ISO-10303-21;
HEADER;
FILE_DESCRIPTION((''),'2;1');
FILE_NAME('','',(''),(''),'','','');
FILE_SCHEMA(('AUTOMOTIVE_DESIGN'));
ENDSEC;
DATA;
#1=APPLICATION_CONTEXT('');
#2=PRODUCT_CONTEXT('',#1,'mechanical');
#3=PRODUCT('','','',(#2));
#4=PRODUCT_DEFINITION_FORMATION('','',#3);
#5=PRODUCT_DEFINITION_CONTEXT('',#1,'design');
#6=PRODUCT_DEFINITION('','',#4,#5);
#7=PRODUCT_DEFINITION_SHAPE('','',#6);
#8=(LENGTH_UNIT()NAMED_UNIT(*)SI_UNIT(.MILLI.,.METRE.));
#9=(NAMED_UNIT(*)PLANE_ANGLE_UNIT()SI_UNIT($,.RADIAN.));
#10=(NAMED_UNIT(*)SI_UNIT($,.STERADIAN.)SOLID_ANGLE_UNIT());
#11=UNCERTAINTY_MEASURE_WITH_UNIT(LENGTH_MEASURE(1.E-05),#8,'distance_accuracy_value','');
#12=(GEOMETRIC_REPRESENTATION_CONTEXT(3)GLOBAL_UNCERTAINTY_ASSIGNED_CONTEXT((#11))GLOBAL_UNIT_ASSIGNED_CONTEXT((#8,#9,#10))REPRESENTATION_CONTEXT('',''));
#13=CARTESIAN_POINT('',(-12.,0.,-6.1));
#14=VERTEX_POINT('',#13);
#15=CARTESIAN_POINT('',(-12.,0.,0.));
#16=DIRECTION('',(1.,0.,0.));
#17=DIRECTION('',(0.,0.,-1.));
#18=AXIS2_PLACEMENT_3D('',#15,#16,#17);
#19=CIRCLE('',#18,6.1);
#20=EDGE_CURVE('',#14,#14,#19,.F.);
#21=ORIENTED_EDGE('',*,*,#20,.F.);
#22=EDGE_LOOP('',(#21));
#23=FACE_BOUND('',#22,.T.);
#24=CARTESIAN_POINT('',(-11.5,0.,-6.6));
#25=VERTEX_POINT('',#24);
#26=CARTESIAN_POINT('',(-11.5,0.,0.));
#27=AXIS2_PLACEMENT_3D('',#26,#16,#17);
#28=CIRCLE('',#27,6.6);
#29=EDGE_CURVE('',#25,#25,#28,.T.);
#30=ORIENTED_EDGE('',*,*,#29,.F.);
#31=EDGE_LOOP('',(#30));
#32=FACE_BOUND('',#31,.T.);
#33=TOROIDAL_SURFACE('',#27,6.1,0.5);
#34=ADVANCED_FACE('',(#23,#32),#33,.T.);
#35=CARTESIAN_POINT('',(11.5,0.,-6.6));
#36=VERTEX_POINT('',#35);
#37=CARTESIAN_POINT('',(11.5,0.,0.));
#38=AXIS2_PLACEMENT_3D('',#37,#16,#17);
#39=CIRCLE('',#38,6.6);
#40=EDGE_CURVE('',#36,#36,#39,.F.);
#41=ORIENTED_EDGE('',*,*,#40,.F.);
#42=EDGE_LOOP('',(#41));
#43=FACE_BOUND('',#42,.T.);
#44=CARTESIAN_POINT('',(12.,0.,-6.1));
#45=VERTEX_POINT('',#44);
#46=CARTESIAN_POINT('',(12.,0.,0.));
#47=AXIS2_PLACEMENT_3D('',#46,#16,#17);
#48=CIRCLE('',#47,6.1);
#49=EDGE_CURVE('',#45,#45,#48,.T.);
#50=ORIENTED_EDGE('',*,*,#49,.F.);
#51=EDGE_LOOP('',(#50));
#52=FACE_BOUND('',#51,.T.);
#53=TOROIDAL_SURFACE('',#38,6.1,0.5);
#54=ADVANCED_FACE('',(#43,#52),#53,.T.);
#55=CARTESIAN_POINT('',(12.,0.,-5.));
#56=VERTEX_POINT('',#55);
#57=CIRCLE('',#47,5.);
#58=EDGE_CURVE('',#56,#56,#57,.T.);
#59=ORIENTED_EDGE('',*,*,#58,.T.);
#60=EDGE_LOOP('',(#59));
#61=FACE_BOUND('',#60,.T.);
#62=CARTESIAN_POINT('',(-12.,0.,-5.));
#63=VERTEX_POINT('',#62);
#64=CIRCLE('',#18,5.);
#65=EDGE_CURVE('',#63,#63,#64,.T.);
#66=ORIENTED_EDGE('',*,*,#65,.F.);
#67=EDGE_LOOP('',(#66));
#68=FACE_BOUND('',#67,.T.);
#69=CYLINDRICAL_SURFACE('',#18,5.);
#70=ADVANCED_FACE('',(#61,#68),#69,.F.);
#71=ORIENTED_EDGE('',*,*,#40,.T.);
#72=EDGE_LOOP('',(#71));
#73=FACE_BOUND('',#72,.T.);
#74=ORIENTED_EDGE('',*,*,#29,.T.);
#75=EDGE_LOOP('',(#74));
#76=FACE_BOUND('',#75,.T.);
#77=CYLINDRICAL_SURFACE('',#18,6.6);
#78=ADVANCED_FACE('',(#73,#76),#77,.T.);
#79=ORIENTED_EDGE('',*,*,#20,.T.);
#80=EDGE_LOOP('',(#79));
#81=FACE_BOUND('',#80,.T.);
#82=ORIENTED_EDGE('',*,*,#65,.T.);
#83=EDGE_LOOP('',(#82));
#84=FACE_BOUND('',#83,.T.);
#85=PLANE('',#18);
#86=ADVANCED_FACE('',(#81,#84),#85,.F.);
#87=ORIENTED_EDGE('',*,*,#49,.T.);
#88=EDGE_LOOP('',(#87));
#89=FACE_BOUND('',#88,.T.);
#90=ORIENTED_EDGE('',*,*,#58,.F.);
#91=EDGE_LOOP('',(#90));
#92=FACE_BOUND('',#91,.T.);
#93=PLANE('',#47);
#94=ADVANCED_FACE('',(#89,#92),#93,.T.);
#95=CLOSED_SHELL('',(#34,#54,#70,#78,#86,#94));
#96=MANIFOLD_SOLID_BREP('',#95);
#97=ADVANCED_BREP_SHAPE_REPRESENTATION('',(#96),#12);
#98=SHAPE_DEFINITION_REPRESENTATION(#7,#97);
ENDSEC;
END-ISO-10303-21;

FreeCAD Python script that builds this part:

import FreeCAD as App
import Part
import Sketcher
from FreeCAD import Vector


def edges_at(feature, points):
    """Names of the edges that pass closest to the given points."""
    edges = feature.Shape.Edges
    near = lambda p: min(range(len(edges)), key=lambda i: edges[i].distToShape(Part.Vertex(*p))[0])
    return sorted({f"Edge{near(p) + 1}" for p in points})

doc = App.newDocument("Part")
params = doc.addObject("Spreadsheet::Sheet", "Params")
for row, (alias, value) in enumerate([
    ("sketch1_diameter", "10 mm"),
    ("sketch1_diameter2", "13.2 mm"),
    ("pad1_length", "24 mm"),
    ("fillet_radius", "0.5 mm"),
], start=1):
    params.set(f"A{row}", alias)
    params.set(f"B{row}", "=" + value)
    params.setAlias(f"B{row}", alias)

body = doc.addObject("PartDesign::Body", "Body")

# Sketch on YZ plane
sketch1 = body.newObject("Sketcher::SketchObject", "Sketch")
sketch1.AttachmentSupport = (doc.getObject("YZ_Plane"), [""])
sketch1.MapMode = "FlatFace"
sketch1.AttachmentOffset = App.Placement(Vector(0, 0, -12), App.Rotation())
sketch1.addGeometry([
    Part.Circle(Vector(0, 0, 0), Vector(0, 0, 1), 7),
    Part.Circle(Vector(0, 0, 0), Vector(0, 0, 1), 5),
], False)
sketch1.addConstraint([
    Sketcher.Constraint("Coincident", 0, 3, -1, 1),
    Sketcher.Constraint("Coincident", 1, 3, -1, 1),
    Sketcher.Constraint("Diameter", 1, 10.0),
    Sketcher.Constraint("Diameter", 0, 13.2),
])
sketch1.setExpression("Constraints[2]", "Params.sketch1_diameter")
sketch1.setExpression("Constraints[3]", "Params.sketch1_diameter2")
pad1 = body.newObject("PartDesign::Pad", "Pad")
pad1.Profile = sketch1
pad1.setExpression("Length", "Params.pad1_length")
doc.recompute()

fillet = body.newObject("PartDesign::Fillet", "Fillet")
fillet.Base = (pad1, edges_at(pad1, [(-12, 0, 6.6), (12, 0, 6.6)]))
fillet.setExpression("Radius", "Params.fillet_radius")

doc.recompute()
